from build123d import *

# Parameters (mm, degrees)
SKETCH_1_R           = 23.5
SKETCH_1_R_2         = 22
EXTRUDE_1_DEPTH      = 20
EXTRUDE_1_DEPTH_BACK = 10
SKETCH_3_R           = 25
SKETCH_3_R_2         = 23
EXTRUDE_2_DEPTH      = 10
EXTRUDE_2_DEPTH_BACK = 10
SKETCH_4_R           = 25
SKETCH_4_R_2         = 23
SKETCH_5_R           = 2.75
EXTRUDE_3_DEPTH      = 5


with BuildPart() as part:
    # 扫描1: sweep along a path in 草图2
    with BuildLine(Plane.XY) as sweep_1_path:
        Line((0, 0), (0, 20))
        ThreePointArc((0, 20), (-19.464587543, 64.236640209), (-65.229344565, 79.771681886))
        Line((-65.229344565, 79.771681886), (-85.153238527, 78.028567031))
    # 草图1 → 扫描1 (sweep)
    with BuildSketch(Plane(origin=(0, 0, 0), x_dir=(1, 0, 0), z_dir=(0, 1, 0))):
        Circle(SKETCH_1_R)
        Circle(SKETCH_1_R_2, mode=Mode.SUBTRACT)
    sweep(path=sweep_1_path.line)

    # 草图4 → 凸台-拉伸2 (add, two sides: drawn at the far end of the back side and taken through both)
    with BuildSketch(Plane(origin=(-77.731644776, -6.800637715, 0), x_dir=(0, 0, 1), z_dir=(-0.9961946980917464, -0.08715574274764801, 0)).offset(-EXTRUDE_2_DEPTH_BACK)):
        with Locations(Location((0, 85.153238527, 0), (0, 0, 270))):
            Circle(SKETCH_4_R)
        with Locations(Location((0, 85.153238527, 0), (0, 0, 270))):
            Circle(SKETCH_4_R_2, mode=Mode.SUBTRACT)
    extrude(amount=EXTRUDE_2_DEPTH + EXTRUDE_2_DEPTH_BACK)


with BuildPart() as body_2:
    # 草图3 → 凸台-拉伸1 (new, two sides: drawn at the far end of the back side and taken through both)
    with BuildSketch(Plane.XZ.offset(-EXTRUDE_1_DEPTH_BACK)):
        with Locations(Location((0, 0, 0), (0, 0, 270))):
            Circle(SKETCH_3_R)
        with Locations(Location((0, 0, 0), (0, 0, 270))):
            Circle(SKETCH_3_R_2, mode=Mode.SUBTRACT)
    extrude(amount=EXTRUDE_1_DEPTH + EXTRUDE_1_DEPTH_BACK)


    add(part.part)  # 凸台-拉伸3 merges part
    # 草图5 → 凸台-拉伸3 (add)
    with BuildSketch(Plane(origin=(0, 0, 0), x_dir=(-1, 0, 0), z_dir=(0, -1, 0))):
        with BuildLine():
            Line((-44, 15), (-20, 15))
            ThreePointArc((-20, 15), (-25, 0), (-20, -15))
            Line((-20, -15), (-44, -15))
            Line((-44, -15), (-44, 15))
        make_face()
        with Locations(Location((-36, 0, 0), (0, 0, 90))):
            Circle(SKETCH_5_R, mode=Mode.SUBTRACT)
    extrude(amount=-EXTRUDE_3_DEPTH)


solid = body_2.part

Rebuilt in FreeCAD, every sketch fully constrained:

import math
import FreeCAD as App
import Part
import Sketcher

V = App.Vector
Q = App.Units.Quantity

doc = App.newDocument("Part")
body = doc.addObject("PartDesign::Body", "Body")

# Sketch on XZ plane
sketch1 = body.newObject("Sketcher::SketchObject", "Sketch")
sketch1.AttachmentSupport = (doc.getObject("XZ_Plane"), [""])
sketch1.MapMode = "FlatFace"
sketch1.addGeometry([
    Part.Circle(V(0, 0, 0), V(0, 0, 1), 24),
    Part.Circle(V(0, 0, 0), V(0, 0, 1), 22),
], False)
sketch1.addConstraint([
    Sketcher.Constraint("Coincident", 0, 3, -1, 1),
    Sketcher.Constraint("Coincident", 1, 3, -1, 1),
    Sketcher.Constraint("Diameter", 0, Q("47 mm")),
    Sketcher.Constraint("Diameter", 1, Q("44 mm")),
])

# Sketch on XY plane
sketch2 = body.newObject("Sketcher::SketchObject", "Sketch001")
sketch2.AttachmentSupport = (doc.getObject("XY_Plane"), [""])
sketch2.MapMode = "FlatFace"
sketch2.addGeometry([
    Part.LineSegment(V(0, 0, 0), V(0, 20, 0)),
    Part.ArcOfCircle(Part.Circle(V(-60, 20, 0), V(0, 0, 1), 60), math.radians(0), math.radians(95)),
    Part.LineSegment(V(-65, 80, 0), V(-85, 78, 0)),
], False)
sketch2.addConstraint([
    Sketcher.Constraint("Tangent", 0, 2, 1, 1),
    Sketcher.Constraint("Tangent", 1, 2, 2, 1),
    Sketcher.Constraint("Vertical", 0),
    Sketcher.Constraint("Coincident", 0, 1, -1, 1),
    Sketcher.Constraint("Radius", 1, Q("60 mm")),
    Sketcher.Constraint("DistanceY", 0, 1, 0, 2, Q("20 mm")),
    Sketcher.Constraint("Angle", 2, Q("-175 deg")),
    Sketcher.Constraint("Distance", 2, Q("20 mm")),
])
doc.recompute()

additivepipe = body.newObject("PartDesign::AdditivePipe", "AdditivePipe")
additivepipe.Profile = sketch1
additivepipe.Spine = (sketch2, ["Edge1", "Edge2", "Edge3"])

# Sketch on an angled plane
sketch3 = body.newObject("Sketcher::SketchObject", "Sketch002")
sketch3.Placement = App.Placement(V(-77.731645, -6.800638, 0), App.Rotation(V(0, 0, 1), V(-0.087155743, 0.996194698, 0), V(-0.996194698, -0.087155743, 0), "ZXY"))
sketch3.addGeometry([
    Part.Circle(V(0, 85, 0), V(0, 0, 1), 25),
    Part.Circle(V(0, 85, 0), V(0, 0, 1), 23),
], False)
sketch3.addConstraint([
    Sketcher.Constraint("Coincident", 1, 3, 0, 3),
    Sketcher.Constraint("PointOnObject", 0, 3, -2),
    Sketcher.Constraint("Diameter", 0, Q("50 mm")),
    Sketcher.Constraint("Diameter", 1, Q("46 mm")),
    Sketcher.Constraint("DistanceY", -1, 1, 0, 3, Q("85.153239 mm")),
])
pad1 = body.newObject("PartDesign::Pad", "Pad")
pad1.Profile = sketch3
pad1.Type = "TwoLengths"
pad1.Length = 10
pad1.Length2 = 10
body2 = doc.addObject("PartDesign::Body", "Body001")

# Sketch on XZ plane
sketch4 = body2.newObject("Sketcher::SketchObject", "Sketch003")
sketch4.AttachmentSupport = (doc.getObject("XZ_Plane001"), [""])
sketch4.MapMode = "FlatFace"
sketch4.addGeometry([
    Part.Circle(V(0, 0, 0), V(0, 0, 1), 25),
    Part.Circle(V(0, 0, 0), V(0, 0, 1), 23),
], False)
sketch4.addConstraint([
    Sketcher.Constraint("Coincident", 0, 3, -1, 1),
    Sketcher.Constraint("Coincident", 1, 3, -1, 1),
    Sketcher.Constraint("Diameter", 0, Q("50 mm")),
    Sketcher.Constraint("Diameter", 1, Q("46 mm")),
])
pad2 = body2.newObject("PartDesign::Pad", "Pad001")
pad2.Profile = sketch4
pad2.Type = "TwoLengths"
pad2.Length = 20
pad2.Length2 = 10
doc.recompute()

boolean = body2.newObject("PartDesign::Boolean", "Boolean")
boolean.Type = "Fuse"
boolean.addObjects([body])

# Sketch on XZ plane
sketch5 = body2.newObject("Sketcher::SketchObject", "Sketch004")
sketch5.AttachmentSupport = (doc.getObject("XZ_Plane001"), [""])
sketch5.MapMode = "FlatFace"
sketch5.addGeometry([
    Part.LineSegment(V(20, -15, 0), V(44, -15, 0)),  # 0
    Part.LineSegment(V(44, -15, 0), V(44, 15, 0)),  # 1
    Part.LineSegment(V(44, 15, 0), V(20, 15, 0)),  # 2
    Part.ArcOfCircle(Part.Circle(V(0, 0, 0), V(0, 0, 1), 25), math.radians(-37), math.radians(37)),  # 3
    Part.Circle(V(36, 0, 0), V(0, 0, 1), 2.8),  # 4
], False)
sketch5.addConstraint([
    Sketcher.Constraint("Coincident", 0, 2, 1, 1),
    Sketcher.Constraint("Coincident", 1, 2, 2, 1),
    Sketcher.Constraint("Coincident", 2, 2, 3, 2),
    Sketcher.Constraint("Coincident", 3, 1, 0, 1),
    Sketcher.Constraint("Horizontal", 0),
    Sketcher.Constraint("Vertical", 1),
    Sketcher.Constraint("Horizontal", 2),
    Sketcher.Constraint("Coincident", 3, 3, -1, 1),
    Sketcher.Constraint("PointOnObject", 4, 3, -1),
    Sketcher.Constraint("Vertical", 2, 2, 3, 1),
    Sketcher.Constraint("Radius", 3, Q("25 mm")),
    Sketcher.Constraint("Diameter", 4, Q("5.5 mm")),
    Sketcher.Constraint("DistanceX", 0, 1, 0, 2, Q("24 mm")),
    Sketcher.Constraint("DistanceY", 1, 1, 1, 2, Q("30 mm")),
    Sketcher.Constraint("DistanceX", -1, 1, 4, 3, Q("36 mm")),
])
pad3 = body2.newObject("PartDesign::Pad", "Pad002")
pad3.Profile = sketch5
pad3.Length = 5
pad3.Reversed = True

doc.recompute()
